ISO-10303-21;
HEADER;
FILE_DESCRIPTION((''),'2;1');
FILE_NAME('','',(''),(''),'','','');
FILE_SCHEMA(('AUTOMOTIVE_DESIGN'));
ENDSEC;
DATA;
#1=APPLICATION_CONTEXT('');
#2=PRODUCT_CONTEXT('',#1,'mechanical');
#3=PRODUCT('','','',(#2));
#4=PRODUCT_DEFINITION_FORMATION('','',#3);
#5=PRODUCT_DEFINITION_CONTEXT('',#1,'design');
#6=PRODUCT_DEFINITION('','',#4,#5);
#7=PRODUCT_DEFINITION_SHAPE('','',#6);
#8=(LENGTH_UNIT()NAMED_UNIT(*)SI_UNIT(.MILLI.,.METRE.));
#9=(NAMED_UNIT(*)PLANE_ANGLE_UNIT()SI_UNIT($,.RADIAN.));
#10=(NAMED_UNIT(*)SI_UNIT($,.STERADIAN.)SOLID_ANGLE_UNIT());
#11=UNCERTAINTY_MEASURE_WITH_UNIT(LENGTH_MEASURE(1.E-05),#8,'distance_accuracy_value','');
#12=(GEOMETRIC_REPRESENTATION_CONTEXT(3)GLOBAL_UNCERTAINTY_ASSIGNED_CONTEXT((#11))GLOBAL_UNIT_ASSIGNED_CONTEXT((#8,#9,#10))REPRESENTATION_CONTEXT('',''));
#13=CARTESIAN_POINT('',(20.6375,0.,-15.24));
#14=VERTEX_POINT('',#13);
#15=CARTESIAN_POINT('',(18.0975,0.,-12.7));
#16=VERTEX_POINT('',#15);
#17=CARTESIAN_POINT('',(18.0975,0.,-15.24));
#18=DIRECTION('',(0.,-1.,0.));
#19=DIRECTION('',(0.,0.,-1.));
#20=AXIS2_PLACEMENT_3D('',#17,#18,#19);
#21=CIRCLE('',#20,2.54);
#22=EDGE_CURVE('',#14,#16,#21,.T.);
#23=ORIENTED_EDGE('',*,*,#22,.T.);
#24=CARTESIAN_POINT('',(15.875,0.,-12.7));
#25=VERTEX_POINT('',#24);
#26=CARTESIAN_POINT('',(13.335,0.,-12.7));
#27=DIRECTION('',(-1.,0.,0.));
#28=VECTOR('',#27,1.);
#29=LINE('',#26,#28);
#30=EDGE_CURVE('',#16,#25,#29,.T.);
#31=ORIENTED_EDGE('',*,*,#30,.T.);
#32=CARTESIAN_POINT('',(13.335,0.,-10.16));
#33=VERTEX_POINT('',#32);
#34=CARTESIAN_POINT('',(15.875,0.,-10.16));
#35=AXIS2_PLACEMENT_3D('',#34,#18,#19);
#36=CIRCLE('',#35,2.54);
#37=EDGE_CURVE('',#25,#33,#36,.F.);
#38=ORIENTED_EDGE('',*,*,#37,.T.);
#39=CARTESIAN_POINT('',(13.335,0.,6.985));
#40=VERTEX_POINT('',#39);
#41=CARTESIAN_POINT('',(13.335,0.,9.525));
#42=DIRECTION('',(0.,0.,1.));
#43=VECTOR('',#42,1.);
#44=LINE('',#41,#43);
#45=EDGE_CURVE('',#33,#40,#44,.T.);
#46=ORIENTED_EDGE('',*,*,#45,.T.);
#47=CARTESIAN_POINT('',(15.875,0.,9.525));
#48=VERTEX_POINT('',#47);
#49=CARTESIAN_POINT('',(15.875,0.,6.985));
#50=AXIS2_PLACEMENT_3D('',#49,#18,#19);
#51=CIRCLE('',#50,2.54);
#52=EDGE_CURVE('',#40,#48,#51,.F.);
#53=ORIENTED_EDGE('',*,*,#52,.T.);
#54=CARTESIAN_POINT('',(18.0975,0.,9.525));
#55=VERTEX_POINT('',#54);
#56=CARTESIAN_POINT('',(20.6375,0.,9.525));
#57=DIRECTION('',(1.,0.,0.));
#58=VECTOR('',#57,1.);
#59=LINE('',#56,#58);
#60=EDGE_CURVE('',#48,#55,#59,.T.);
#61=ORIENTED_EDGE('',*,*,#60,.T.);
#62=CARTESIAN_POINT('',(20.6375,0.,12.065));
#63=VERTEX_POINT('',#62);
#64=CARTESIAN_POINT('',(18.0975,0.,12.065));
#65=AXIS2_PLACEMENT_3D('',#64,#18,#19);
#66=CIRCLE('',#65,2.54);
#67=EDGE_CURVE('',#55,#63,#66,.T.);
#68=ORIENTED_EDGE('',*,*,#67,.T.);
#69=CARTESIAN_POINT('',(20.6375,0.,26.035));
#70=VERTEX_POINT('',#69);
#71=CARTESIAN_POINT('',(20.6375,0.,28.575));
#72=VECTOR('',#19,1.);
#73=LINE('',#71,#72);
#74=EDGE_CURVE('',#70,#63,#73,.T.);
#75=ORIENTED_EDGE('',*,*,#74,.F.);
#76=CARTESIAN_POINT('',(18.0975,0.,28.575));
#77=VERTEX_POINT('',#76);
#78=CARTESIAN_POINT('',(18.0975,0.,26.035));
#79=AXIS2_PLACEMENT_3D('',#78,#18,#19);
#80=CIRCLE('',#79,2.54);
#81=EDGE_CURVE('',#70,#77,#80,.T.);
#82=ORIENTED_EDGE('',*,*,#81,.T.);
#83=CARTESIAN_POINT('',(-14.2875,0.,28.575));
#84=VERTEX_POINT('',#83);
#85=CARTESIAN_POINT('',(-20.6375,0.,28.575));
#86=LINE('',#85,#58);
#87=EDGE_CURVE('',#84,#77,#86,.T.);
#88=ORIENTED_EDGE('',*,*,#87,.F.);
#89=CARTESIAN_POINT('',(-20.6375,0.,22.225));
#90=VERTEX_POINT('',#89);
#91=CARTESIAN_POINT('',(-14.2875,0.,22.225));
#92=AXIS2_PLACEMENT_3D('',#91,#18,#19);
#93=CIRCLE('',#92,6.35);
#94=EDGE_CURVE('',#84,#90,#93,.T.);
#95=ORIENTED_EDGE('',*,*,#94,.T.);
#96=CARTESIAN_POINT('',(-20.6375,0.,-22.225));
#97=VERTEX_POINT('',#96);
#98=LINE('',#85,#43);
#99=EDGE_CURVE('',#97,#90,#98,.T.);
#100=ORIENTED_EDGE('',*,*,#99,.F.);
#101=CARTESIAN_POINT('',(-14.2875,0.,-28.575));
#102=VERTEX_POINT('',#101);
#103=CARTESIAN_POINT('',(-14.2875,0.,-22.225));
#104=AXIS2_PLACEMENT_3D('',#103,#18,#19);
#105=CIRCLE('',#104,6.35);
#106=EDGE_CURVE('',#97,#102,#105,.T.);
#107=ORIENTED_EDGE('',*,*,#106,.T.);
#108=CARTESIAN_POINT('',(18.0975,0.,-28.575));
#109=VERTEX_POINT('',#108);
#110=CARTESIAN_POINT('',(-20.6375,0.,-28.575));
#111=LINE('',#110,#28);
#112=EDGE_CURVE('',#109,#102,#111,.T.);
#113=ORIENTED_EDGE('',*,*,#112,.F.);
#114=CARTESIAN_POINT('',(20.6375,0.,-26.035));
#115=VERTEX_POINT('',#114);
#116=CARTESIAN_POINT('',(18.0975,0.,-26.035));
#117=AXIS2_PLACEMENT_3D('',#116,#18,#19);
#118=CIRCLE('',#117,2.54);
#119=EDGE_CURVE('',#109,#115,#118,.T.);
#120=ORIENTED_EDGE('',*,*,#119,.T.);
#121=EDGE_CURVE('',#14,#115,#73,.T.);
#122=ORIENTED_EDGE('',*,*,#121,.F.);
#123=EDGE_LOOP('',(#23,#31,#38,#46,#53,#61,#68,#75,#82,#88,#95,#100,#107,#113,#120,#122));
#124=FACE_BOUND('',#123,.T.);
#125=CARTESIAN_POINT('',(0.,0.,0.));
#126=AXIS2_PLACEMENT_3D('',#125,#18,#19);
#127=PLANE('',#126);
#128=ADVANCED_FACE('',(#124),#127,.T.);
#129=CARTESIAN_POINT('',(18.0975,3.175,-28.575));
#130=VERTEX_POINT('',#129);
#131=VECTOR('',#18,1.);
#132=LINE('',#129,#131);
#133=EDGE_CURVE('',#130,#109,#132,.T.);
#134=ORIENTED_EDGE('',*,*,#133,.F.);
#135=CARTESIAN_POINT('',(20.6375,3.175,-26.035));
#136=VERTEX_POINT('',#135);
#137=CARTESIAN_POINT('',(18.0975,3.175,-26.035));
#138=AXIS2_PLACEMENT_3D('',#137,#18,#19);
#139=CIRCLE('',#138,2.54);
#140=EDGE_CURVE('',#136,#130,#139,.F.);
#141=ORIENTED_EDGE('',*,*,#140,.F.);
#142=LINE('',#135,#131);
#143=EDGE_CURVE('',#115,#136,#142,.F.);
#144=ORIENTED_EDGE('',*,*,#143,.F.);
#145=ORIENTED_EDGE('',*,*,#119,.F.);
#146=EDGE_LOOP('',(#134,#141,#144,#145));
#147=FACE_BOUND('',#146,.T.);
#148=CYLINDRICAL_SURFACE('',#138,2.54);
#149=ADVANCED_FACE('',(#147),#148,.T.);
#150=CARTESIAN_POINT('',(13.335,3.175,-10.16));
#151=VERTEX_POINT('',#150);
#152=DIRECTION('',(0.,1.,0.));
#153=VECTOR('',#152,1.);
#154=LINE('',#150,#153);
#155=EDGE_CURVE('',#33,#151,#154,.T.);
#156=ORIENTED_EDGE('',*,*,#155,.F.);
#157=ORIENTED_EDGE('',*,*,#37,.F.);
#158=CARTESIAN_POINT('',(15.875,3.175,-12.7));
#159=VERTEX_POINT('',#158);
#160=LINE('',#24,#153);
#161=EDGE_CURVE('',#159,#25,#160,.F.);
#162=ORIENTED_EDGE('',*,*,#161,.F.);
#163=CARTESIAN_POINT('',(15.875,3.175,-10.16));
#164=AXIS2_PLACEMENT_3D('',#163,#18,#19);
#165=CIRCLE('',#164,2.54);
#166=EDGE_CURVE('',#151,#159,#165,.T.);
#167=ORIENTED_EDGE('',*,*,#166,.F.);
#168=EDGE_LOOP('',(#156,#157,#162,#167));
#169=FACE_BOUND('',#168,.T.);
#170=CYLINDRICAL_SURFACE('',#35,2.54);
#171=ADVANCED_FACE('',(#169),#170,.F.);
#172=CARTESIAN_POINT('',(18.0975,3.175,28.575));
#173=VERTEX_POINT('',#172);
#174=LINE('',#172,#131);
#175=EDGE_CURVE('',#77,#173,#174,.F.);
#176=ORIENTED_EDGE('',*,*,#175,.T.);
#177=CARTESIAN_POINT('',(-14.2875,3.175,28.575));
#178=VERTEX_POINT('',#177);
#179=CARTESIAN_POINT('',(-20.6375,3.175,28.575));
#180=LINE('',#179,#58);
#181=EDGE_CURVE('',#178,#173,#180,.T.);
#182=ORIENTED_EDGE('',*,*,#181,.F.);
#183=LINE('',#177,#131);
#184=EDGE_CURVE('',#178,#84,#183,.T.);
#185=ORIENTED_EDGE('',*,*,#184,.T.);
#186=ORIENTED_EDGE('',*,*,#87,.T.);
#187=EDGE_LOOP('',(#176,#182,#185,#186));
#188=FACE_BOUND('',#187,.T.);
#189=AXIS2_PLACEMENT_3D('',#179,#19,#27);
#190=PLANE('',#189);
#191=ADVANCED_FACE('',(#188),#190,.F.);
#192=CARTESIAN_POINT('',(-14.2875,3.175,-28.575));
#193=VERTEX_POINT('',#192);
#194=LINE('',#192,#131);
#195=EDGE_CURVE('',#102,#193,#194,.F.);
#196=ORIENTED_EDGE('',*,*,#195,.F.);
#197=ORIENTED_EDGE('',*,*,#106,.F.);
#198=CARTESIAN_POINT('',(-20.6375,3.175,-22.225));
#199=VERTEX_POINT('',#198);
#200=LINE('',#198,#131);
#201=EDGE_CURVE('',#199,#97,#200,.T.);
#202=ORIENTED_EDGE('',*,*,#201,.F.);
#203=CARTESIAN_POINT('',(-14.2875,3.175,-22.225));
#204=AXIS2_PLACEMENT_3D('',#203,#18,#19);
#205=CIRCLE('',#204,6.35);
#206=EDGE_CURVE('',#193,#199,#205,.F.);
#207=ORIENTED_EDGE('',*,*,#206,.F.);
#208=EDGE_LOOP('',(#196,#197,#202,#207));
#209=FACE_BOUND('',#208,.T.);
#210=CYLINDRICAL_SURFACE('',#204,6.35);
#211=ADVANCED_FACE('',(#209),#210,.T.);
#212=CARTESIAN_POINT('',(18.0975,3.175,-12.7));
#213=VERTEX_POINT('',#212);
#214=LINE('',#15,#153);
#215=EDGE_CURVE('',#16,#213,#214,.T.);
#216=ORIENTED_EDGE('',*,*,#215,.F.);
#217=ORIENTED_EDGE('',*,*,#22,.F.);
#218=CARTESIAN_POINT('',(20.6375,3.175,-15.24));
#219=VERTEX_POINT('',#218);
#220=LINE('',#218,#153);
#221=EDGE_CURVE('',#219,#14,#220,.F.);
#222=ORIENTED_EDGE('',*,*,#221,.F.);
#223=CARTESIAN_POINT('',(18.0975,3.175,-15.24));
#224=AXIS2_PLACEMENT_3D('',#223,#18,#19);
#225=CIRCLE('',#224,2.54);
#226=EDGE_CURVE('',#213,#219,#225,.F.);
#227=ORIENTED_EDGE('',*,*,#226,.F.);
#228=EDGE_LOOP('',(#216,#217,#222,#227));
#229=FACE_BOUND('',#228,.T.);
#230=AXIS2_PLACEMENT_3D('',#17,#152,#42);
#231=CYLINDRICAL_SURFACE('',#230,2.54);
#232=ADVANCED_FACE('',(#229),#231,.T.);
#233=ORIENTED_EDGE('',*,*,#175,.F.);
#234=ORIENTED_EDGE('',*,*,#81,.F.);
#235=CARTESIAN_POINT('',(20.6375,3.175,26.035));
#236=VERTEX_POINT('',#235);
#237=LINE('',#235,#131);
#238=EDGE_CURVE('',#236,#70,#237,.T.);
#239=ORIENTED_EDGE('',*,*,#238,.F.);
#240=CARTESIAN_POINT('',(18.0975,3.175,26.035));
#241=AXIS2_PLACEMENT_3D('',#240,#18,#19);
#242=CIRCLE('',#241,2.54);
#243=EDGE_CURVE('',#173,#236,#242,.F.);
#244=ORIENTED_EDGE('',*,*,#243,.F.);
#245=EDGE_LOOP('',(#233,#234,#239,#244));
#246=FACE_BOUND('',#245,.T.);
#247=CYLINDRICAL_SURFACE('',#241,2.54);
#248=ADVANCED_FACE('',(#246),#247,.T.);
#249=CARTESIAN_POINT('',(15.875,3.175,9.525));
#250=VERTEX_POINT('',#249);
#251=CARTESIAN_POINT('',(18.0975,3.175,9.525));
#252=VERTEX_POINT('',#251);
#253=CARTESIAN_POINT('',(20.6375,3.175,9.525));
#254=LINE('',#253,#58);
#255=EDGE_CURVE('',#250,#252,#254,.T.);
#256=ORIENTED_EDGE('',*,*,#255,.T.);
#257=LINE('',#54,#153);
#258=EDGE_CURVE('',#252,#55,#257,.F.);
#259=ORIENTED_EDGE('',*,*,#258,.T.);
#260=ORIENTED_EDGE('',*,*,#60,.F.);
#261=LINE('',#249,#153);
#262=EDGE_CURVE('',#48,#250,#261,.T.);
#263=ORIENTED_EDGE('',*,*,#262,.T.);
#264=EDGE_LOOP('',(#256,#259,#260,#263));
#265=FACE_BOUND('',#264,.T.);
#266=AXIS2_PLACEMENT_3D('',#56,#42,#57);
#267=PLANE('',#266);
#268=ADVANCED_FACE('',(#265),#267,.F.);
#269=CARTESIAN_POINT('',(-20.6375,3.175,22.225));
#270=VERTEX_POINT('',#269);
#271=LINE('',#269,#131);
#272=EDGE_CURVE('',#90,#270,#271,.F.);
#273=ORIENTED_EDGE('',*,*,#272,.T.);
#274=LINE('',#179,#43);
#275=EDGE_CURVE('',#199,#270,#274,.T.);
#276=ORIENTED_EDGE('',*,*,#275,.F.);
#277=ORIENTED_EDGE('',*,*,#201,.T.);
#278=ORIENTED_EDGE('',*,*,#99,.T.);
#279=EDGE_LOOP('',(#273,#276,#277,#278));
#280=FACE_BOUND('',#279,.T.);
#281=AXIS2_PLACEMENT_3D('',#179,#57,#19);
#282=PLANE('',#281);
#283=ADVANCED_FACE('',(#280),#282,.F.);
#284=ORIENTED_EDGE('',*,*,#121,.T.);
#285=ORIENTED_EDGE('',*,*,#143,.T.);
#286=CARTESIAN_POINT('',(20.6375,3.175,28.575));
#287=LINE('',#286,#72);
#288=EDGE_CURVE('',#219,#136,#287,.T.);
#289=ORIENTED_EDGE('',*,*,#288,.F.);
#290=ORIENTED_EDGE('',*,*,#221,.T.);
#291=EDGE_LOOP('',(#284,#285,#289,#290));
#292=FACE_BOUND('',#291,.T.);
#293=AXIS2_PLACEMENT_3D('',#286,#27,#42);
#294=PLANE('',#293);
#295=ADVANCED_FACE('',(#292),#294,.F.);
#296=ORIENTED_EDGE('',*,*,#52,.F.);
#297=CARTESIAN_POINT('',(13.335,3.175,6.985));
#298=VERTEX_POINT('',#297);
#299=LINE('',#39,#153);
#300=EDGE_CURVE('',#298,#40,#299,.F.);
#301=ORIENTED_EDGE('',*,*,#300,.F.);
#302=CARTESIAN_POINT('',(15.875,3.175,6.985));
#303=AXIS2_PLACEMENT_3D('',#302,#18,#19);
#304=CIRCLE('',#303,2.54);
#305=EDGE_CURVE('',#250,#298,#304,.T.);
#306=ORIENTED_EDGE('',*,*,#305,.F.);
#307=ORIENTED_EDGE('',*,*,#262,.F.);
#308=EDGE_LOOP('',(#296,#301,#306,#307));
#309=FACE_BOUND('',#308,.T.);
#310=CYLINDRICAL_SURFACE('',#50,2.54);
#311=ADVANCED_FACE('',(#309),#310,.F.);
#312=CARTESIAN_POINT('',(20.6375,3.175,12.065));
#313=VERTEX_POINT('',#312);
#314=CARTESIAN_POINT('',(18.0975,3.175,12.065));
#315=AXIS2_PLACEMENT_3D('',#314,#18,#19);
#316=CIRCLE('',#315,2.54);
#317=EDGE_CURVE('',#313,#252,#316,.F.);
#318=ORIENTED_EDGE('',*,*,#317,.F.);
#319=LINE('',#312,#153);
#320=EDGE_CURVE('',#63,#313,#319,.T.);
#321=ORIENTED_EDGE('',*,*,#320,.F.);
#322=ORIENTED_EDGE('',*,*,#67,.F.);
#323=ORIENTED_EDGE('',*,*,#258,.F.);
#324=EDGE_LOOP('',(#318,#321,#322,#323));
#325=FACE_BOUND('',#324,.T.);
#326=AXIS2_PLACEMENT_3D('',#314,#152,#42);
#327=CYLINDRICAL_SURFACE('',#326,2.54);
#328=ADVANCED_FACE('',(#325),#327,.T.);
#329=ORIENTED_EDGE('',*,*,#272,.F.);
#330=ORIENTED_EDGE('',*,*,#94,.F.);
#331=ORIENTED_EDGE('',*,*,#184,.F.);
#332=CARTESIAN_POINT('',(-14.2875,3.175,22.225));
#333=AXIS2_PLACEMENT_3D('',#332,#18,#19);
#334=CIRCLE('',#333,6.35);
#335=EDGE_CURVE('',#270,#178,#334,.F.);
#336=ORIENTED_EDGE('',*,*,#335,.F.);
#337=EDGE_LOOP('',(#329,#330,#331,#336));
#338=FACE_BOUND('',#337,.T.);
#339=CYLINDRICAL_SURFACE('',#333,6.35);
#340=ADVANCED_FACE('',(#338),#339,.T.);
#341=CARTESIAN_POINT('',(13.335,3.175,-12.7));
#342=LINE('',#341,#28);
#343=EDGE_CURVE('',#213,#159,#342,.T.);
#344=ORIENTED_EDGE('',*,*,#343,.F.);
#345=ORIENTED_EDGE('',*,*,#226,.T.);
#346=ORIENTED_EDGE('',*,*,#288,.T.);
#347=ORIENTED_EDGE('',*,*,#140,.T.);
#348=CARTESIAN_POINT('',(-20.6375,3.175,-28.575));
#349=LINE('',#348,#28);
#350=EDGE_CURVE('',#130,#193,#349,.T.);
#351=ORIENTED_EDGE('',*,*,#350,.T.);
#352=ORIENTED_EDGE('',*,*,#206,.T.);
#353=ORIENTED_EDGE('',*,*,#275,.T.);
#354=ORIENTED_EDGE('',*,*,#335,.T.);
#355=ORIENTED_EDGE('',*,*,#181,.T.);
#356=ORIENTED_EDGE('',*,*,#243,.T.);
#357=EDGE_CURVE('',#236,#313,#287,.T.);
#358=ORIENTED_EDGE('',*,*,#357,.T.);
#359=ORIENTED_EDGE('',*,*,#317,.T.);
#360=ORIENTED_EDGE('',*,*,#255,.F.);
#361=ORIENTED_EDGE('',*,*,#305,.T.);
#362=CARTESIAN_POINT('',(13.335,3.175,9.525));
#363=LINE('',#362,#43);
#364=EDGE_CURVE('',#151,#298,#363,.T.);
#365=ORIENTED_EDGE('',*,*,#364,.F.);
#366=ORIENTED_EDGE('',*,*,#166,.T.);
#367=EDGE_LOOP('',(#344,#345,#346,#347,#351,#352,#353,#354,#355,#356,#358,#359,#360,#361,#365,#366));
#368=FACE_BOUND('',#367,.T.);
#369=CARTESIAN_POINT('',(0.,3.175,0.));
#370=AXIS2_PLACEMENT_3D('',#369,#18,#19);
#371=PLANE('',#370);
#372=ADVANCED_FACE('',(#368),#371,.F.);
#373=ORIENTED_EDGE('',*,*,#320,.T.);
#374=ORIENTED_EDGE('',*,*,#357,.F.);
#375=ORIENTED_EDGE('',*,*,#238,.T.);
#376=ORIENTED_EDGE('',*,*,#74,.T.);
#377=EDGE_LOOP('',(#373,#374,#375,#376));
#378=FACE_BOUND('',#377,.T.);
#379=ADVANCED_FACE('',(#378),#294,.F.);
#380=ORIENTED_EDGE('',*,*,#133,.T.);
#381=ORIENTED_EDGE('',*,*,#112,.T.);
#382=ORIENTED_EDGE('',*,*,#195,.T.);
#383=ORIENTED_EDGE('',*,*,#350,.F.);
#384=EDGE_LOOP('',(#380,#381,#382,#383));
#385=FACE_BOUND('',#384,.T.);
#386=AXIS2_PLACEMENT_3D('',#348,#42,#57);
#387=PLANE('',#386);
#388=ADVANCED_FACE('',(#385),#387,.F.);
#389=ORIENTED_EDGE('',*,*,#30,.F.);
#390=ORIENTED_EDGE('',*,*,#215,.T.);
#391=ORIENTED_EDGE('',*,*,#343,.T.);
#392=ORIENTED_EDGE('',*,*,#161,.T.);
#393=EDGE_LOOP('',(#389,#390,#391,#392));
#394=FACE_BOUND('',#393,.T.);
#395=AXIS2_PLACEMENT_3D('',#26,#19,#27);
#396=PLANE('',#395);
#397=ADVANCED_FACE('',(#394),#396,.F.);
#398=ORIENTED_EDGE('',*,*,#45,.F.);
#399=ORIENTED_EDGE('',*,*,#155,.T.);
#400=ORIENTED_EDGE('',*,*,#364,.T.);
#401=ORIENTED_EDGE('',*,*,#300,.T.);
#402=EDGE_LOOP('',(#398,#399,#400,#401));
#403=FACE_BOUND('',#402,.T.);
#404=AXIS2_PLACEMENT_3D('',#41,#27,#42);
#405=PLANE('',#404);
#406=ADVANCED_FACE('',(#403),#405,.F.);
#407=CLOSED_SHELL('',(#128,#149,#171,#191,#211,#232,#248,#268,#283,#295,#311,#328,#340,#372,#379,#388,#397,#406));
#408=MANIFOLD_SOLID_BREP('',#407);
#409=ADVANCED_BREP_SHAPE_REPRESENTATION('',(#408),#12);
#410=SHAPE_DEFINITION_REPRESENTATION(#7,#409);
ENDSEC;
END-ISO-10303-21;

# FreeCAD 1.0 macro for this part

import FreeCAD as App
import Part
import Sketcher

V = App.Vector
Q = App.Units.Quantity


def edges_at(feature, points):
    """Names of the edges that pass closest to the given points."""
    edges = feature.Shape.Edges
    near = lambda p: min(range(len(edges)), key=lambda i: edges[i].distToShape(Part.Vertex(*p))[0])
    return sorted({f"Edge{near(p) + 1}" for p in points})


def add_polygon(sketch, points):
    """Adds a closed chain of lines whose ends are joined by coincident constraints."""
    first, n = sketch.GeometryCount, len(points)
    for a, b in zip(points, points[1:] + points[:1]):
        sketch.addGeometry(Part.LineSegment(App.Vector(*a, 0), App.Vector(*b, 0)), False)
    for i in range(n):
        sketch.addConstraint(Sketcher.Constraint("Coincident", first + i, 2, first + (i + 1) % n, 1))

doc = App.newDocument("Part")
params = doc.addObject("Spreadsheet::Sheet", "Params")
for row, (alias, value) in enumerate([
    ("sketch1_height", "2.25 in"),
    ("sketch1_width", "1.625 in"),
    ("pad1_length", "0.125 in"),
    ("sketch2_height", "0.875 in"),
    ("fillet_radius", "0.1 in"),
    ("fillet2_radius", "0.25 in"),
], start=1):
    params.set(f"A{row}", alias)
    params.set(f"B{row}", "=" + value)
    params.setAlias(f"B{row}", alias)

body = doc.addObject("PartDesign::Body", "Body")

# Sketch on XZ plane
sketch1 = doc.addObject("Sketcher::SketchObject", "Sketch")
body.addObject(sketch1)
sketch1.AttachmentSupport = (doc.XZ_Plane, [""])
sketch1.MapMode = "FlatFace"
add_polygon(sketch1, [(-21, -29), (-21, 29), (21, 29), (21, -29)])  # lines 0-3
sketch1.addConstraint([
    Sketcher.Constraint("Vertical", 0),
    Sketcher.Constraint("Horizontal", 1),
    Sketcher.Constraint("Vertical", 2),
    Sketcher.Constraint("Horizontal", 3),
    Sketcher.Constraint("Symmetric", 0, 2, 2, 2, -1, 1),
    Sketcher.Constraint("DistanceY", 0, 1, 0, 2, Q("2.25 in")),
    Sketcher.Constraint("DistanceX", 1, 1, 1, 2, Q("1.625 in")),
])
sketch1.setExpression("Constraints[9]", "Params.sketch1_height")
sketch1.setExpression("Constraints[10]", "Params.sketch1_width")
pad1 = doc.addObject("PartDesign::Pad", "Pad")
body.addObject(pad1)
pad1.Profile = sketch1
pad1.setExpression("Length", "Params.pad1_length")
pad1.Reversed = True

# Sketch on XZ plane
sketch2 = doc.addObject("Sketcher::SketchObject", "Sketch001")
body.addObject(sketch2)
sketch2.AttachmentSupport = (doc.XZ_Plane, [""])
sketch2.MapMode = "FlatFace"
sketch2.AttachmentOffset = App.Placement(V(0, 0, -0.125 * 25.4), App.Rotation())
add_polygon(sketch2, [(13, -13), (13, 10), (21, 10), (21, -13)])  # lines 0-3
sketch2.addConstraint([
    Sketcher.Constraint("Vertical", 0),
    Sketcher.Constraint("Horizontal", 1),
    Sketcher.Constraint("Vertical", 2),
    Sketcher.Constraint("Horizontal", 3),
    Sketcher.Constraint("DistanceY", 2, 2, -1, 1, Q("0.5 in")),
    Sketcher.Constraint("DistanceY", 0, 1, 0, 2, Q("0.875 in")),
    Sketcher.Constraint("DistanceX", 1, 1, 1, 2, Q("0.2875 in")),
    Sketcher.Constraint("DistanceX", -1, 1, 0, 2, Q("0.525 in")),
])
sketch2.setExpression("Constraints[9]", "Params.sketch2_height")
pocket1 = doc.addObject("PartDesign::Pocket", "Pocket")
body.addObject(pocket1)
pocket1.Profile = sketch2
pocket1.Type = "ThroughAll"
pocket1.Reversed = True
doc.recompute()

fillet = doc.addObject("PartDesign::Fillet", "Fillet")
body.addObject(fillet)
fillet.Base = (pocket1, edges_at(pocket1, [
    (20.637, 1.587, -12.7),
    (20.637, 1.587, 9.525),
    (13.335, 1.587, 9.525),
    (13.335, 1.587, -12.7),
    (20.637, 1.587, 28.575),
    (20.637, 1.587, -28.575),
]))
fillet.setExpression("Radius", "Params.fillet_radius")
doc.recompute()

fillet2 = doc.addObject("PartDesign::Fillet", "Fillet001")
body.addObject(fillet2)
fillet2.Base = (fillet, edges_at(fillet, [(-20.637, 1.587, 28.575), (-20.637, 1.587, -28.575)]))
fillet2.setExpression("Radius", "Params.fillet2_radius")

doc.recompute()
